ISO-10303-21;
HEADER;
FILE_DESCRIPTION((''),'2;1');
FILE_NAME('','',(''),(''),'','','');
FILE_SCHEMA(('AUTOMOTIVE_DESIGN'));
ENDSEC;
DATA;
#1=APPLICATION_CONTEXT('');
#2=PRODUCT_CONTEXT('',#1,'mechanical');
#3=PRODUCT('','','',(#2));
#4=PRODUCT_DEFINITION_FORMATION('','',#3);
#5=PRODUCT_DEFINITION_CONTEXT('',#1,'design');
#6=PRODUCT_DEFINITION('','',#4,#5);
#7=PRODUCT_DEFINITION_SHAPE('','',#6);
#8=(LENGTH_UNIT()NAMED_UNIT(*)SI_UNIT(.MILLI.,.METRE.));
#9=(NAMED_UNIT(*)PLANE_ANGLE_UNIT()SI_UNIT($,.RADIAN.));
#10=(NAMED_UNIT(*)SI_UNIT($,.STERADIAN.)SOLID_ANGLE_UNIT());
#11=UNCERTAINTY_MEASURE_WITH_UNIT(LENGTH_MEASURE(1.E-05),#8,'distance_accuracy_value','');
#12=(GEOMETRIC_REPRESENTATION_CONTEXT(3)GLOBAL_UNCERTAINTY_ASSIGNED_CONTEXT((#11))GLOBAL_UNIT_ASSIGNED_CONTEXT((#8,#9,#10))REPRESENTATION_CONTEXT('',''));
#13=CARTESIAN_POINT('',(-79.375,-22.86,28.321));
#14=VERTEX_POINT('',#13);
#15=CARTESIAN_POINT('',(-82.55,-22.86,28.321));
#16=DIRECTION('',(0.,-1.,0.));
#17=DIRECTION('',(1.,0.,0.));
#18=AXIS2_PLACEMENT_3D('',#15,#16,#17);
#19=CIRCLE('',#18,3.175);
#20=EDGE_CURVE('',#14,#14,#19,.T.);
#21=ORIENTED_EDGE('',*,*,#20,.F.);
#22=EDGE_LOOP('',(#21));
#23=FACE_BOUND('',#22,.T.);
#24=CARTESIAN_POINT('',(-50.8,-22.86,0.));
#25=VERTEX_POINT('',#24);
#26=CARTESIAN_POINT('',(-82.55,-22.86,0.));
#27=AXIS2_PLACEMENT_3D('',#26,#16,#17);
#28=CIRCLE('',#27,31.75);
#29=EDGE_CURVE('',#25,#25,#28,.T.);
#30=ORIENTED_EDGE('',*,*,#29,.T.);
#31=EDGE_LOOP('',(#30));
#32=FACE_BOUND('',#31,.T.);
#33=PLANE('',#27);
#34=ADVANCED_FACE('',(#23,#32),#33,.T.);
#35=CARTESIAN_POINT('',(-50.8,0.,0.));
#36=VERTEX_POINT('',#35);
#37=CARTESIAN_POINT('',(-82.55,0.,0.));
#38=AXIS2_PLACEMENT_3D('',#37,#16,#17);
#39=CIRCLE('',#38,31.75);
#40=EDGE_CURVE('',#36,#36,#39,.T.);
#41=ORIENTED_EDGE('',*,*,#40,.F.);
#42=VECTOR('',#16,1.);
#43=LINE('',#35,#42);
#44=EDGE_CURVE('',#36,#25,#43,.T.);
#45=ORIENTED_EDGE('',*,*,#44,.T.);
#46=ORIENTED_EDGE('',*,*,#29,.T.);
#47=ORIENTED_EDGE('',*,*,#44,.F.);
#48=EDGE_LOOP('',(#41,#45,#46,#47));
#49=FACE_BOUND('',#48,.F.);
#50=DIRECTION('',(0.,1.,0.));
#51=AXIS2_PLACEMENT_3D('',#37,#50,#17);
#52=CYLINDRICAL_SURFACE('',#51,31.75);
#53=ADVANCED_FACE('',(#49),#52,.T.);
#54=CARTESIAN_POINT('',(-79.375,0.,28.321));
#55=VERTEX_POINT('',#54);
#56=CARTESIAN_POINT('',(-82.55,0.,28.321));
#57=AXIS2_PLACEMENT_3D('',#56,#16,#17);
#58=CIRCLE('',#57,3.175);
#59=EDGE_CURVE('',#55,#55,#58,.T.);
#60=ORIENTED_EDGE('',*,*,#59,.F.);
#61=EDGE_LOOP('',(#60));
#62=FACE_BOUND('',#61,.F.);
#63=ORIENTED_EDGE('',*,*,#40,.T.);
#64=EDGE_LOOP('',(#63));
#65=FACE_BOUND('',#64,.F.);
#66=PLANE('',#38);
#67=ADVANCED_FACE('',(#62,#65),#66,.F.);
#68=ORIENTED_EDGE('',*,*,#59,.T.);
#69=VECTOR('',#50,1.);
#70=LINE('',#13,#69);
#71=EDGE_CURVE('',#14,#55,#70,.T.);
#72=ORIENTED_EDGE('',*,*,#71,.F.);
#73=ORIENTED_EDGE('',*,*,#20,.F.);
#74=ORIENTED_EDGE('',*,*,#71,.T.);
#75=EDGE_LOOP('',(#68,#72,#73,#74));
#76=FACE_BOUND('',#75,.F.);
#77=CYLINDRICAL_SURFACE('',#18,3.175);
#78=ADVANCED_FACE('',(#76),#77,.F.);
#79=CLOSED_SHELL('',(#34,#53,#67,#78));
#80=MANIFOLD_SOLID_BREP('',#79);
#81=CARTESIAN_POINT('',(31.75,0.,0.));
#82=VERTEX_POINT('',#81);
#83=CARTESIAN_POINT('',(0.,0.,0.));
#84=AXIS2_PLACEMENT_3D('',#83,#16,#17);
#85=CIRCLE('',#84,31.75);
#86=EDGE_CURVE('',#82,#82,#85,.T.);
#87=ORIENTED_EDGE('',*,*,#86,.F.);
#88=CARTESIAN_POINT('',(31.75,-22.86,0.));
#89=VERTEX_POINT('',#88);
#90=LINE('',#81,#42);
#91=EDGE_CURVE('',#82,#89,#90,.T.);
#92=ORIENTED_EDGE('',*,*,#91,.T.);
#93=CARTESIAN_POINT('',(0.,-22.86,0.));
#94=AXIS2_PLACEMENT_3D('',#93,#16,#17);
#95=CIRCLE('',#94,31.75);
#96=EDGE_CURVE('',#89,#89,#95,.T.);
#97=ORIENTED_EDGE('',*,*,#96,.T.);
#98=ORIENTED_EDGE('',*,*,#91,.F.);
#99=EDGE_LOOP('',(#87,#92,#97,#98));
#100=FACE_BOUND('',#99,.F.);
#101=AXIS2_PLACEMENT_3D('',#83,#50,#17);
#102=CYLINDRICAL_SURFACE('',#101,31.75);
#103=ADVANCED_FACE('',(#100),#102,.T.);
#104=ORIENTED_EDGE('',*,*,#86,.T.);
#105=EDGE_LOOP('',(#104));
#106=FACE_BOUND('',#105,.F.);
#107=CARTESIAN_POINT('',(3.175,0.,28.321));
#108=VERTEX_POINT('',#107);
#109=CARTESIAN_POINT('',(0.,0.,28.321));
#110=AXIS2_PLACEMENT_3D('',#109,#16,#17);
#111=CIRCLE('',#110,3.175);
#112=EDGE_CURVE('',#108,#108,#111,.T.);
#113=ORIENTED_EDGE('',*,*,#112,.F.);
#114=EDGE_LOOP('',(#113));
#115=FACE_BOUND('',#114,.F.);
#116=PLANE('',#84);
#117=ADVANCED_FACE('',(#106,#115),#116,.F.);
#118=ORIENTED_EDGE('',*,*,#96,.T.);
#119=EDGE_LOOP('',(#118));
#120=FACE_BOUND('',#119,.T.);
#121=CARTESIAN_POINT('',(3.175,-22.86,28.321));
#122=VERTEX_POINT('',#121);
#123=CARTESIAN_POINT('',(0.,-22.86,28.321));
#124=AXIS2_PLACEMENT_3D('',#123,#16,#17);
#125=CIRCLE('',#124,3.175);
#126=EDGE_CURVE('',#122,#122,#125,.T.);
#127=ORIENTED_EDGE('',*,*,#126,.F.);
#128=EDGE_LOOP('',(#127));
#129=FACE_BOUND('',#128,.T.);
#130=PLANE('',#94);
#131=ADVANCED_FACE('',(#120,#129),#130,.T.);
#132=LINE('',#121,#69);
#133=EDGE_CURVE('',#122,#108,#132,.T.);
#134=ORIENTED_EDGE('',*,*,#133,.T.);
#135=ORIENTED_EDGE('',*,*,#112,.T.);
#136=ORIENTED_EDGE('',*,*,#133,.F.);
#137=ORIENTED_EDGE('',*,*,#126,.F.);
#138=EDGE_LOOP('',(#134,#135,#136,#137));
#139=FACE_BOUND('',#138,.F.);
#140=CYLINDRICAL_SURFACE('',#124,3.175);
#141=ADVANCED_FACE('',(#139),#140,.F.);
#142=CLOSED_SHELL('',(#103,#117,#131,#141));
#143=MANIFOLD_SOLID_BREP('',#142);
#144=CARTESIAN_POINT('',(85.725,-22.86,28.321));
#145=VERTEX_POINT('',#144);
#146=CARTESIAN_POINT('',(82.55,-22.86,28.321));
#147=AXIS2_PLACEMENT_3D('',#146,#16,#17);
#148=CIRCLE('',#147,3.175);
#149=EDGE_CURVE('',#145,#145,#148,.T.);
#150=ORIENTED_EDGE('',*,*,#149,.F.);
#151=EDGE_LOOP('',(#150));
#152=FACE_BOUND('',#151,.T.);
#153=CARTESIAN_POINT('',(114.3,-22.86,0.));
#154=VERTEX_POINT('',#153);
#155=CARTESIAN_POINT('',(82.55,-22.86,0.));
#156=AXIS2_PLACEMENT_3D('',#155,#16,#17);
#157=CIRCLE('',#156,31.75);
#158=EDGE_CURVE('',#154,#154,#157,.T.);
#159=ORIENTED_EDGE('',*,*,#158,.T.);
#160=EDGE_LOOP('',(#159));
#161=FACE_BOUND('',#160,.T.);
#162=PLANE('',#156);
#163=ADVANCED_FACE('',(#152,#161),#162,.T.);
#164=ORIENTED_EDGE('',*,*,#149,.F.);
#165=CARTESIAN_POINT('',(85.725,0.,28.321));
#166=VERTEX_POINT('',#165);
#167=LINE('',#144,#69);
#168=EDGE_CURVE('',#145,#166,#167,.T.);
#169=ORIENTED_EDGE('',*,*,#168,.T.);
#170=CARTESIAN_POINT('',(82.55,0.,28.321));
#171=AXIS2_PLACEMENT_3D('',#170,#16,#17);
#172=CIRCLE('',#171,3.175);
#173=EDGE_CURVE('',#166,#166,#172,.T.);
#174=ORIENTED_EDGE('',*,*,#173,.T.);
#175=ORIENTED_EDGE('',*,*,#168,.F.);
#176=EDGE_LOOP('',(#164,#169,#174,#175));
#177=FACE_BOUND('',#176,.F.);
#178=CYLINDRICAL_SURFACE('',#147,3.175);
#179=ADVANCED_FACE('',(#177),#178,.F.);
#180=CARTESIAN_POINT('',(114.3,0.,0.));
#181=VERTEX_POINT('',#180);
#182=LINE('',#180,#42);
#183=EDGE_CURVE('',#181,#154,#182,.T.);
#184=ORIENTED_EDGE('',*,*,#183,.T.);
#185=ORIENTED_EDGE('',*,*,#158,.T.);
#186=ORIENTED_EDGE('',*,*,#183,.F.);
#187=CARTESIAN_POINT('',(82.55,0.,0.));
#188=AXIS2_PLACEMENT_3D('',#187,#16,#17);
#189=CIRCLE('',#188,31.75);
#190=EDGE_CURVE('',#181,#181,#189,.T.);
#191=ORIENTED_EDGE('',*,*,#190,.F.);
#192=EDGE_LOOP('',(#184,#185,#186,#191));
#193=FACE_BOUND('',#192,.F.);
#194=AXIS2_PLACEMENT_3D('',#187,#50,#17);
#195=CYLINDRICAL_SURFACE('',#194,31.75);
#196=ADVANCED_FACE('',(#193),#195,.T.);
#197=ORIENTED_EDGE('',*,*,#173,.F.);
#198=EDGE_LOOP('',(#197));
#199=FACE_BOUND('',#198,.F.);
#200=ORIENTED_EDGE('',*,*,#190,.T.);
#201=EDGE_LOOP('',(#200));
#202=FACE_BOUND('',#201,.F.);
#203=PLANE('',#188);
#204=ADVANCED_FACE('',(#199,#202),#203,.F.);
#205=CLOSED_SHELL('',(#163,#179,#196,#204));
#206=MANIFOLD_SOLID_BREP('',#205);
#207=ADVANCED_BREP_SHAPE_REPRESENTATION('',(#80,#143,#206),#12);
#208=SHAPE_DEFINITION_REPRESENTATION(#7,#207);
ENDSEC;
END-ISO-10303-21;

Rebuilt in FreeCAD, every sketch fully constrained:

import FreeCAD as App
import Part
import Sketcher
Q = App.Units.Quantity

doc = App.newDocument("Part")
body = doc.addObject("PartDesign::Body", "Body")
body.AllowCompound = True

# Sketch on XZ plane
sketch1 = body.newObject("Sketcher::SketchObject", "Sketch")
sketch1.AttachmentSupport = (doc.getObject("XZ_Plane"), [""])
sketch1.MapMode = "FlatFace"
sketch1.addGeometry([
    Part.Circle(App.Vector(-83, 0, 0), App.Vector(0, 0, 1), 32),
    Part.Circle(App.Vector(0, 0, 0), App.Vector(0, 0, 1), 32),
    Part.Circle(App.Vector(83, 0, 0), App.Vector(0, 0, 1), 32),
], False)
sketch1.addConstraint([
    Sketcher.Constraint("Coincident", 1, 3, -1, 1),
    Sketcher.Constraint("Equal", 0, 1),
    Sketcher.Constraint("Equal", 1, 2),
    Sketcher.Constraint("Symmetric", 0, 3, 2, 3, -1, 1),
    Sketcher.Constraint("PointOnObject", 0, 3, -1),
    Sketcher.Constraint("Diameter", 0, Q("2.5 in")),
    Sketcher.Constraint("DistanceX", 0, 3, 2, 3, Q("6.5 in")),
])
pad1 = body.newObject("PartDesign::Pad", "Pad")
pad1.Profile = sketch1
pad1.Length = Q("0.9 in")

# Sketch on XZ plane
sketch2 = body.newObject("Sketcher::SketchObject", "Sketch001")
sketch2.AttachmentSupport = (doc.getObject("XZ_Plane"), [""])
sketch2.MapMode = "FlatFace"
sketch2.AttachmentOffset = App.Placement(App.Vector(0, 0, 0.9 * 25.4), App.Rotation())
sketch2.addGeometry(Part.Circle(App.Vector(-82.5, 28.3, 0), App.Vector(0, 0, 1), 3.2), False)
sketch2.addConstraint([
    Sketcher.Constraint("Diameter", 0, Q("0.25 in")),
    Sketcher.Constraint("DistanceX", 0, 3, -1, 1, Q("3.25 in")),
    Sketcher.Constraint("DistanceY", -1, 1, 0, 3, Q("1.115 in")),
])
pocket1 = body.newObject("PartDesign::Pocket", "Pocket")
pocket1.Profile = sketch2
pocket1.Length = Q("1 in")

# Sketch on XZ plane
sketch3 = body.newObject("Sketcher::SketchObject", "Sketch002")
sketch3.AttachmentSupport = (doc.getObject("XZ_Plane"), [""])
sketch3.MapMode = "FlatFace"
sketch3.AttachmentOffset = App.Placement(App.Vector(0, 0, 0.9 * 25.4), App.Rotation())
sketch3.addGeometry(Part.Circle(App.Vector(0, 28.3, 0), App.Vector(0, 0, 1), 3.2), False)
sketch3.addConstraint([
    Sketcher.Constraint("PointOnObject", 0, 3, -2),
    Sketcher.Constraint("Diameter", 0, Q("0.25 in")),
    Sketcher.Constraint("DistanceY", -1, 1, 0, 3, Q("1.115 in")),
])
pocket2 = body.newObject("PartDesign::Pocket", "Pocket001")
pocket2.Profile = sketch3
pocket2.Length = Q("1 in")

# Sketch on XZ plane
sketch4 = body.newObject("Sketcher::SketchObject", "Sketch003")
sketch4.AttachmentSupport = (doc.getObject("XZ_Plane"), [""])
sketch4.MapMode = "FlatFace"
sketch4.AttachmentOffset = App.Placement(App.Vector(0, 0, 0.9 * 25.4), App.Rotation())
sketch4.addGeometry(Part.Circle(App.Vector(82.5, 28.3, 0), App.Vector(0, 0, 1), 3.2), False)
sketch4.addConstraint([
    Sketcher.Constraint("Diameter", 0, Q("0.25 in")),
    Sketcher.Constraint("DistanceX", -1, 1, 0, 3, Q("3.25 in")),
    Sketcher.Constraint("DistanceY", -1, 1, 0, 3, Q("1.115 in")),
])
pocket3 = body.newObject("PartDesign::Pocket", "Pocket002")
pocket3.Profile = sketch4
pocket3.Length = Q("1 in")

doc.recompute()
